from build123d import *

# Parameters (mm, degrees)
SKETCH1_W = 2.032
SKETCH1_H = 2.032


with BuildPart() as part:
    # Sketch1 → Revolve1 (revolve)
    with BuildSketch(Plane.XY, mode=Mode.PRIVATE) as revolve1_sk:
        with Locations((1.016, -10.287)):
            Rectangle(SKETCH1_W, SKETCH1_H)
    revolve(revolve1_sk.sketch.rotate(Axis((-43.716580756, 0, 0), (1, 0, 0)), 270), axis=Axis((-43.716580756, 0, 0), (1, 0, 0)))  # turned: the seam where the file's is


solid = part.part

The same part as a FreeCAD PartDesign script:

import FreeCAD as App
import Part
import Sketcher
Q = App.Units.Quantity


def add_polygon(sketch, points):
    """Adds a closed chain of lines whose ends are joined by coincident constraints."""
    first, n = sketch.GeometryCount, len(points)
    for a, b in zip(points, points[1:] + points[:1]):
        sketch.addGeometry(Part.LineSegment(App.Vector(*a, 0), App.Vector(*b, 0)), False)
    for i in range(n):
        sketch.addConstraint(Sketcher.Constraint("Coincident", first + i, 2, first + (i + 1) % n, 1))

doc = App.newDocument("Part")
body = doc.addObject("PartDesign::Body", "Body")

sketch1 = body.newObject("Sketcher::SketchObject", "Sketch")
sketch1.AttachmentSupport = (doc.getObject("XY_Plane"), [""])
sketch1.MapMode = "FlatFace"
add_polygon(sketch1, [(0, -9.3), (0, -11.3), (2, -11.3), (2, -9.3)])
sketch1.addConstraint([
    Sketcher.Constraint("Vertical", 0),
    Sketcher.Constraint("Horizontal", 1),
    Sketcher.Constraint("Vertical", 2),
    Sketcher.Constraint("Horizontal", 3),
    Sketcher.Constraint("PointOnObject", 0, 2, -2),
    Sketcher.Constraint("Equal", 3, 0),
    Sketcher.Constraint("DistanceX", 1, 1, 1, 2, Q("0.08 in")),
    Sketcher.Constraint("DistanceY", 0, 2, -1, 1, Q("0.445 in")),
])
revolution = body.newObject("PartDesign::Revolution", "Revolution")
revolution.Profile = sketch1
revolution.ReferenceAxis = (sketch1, ["H_Axis"])
revolution.Angle = 360

doc.recompute()
